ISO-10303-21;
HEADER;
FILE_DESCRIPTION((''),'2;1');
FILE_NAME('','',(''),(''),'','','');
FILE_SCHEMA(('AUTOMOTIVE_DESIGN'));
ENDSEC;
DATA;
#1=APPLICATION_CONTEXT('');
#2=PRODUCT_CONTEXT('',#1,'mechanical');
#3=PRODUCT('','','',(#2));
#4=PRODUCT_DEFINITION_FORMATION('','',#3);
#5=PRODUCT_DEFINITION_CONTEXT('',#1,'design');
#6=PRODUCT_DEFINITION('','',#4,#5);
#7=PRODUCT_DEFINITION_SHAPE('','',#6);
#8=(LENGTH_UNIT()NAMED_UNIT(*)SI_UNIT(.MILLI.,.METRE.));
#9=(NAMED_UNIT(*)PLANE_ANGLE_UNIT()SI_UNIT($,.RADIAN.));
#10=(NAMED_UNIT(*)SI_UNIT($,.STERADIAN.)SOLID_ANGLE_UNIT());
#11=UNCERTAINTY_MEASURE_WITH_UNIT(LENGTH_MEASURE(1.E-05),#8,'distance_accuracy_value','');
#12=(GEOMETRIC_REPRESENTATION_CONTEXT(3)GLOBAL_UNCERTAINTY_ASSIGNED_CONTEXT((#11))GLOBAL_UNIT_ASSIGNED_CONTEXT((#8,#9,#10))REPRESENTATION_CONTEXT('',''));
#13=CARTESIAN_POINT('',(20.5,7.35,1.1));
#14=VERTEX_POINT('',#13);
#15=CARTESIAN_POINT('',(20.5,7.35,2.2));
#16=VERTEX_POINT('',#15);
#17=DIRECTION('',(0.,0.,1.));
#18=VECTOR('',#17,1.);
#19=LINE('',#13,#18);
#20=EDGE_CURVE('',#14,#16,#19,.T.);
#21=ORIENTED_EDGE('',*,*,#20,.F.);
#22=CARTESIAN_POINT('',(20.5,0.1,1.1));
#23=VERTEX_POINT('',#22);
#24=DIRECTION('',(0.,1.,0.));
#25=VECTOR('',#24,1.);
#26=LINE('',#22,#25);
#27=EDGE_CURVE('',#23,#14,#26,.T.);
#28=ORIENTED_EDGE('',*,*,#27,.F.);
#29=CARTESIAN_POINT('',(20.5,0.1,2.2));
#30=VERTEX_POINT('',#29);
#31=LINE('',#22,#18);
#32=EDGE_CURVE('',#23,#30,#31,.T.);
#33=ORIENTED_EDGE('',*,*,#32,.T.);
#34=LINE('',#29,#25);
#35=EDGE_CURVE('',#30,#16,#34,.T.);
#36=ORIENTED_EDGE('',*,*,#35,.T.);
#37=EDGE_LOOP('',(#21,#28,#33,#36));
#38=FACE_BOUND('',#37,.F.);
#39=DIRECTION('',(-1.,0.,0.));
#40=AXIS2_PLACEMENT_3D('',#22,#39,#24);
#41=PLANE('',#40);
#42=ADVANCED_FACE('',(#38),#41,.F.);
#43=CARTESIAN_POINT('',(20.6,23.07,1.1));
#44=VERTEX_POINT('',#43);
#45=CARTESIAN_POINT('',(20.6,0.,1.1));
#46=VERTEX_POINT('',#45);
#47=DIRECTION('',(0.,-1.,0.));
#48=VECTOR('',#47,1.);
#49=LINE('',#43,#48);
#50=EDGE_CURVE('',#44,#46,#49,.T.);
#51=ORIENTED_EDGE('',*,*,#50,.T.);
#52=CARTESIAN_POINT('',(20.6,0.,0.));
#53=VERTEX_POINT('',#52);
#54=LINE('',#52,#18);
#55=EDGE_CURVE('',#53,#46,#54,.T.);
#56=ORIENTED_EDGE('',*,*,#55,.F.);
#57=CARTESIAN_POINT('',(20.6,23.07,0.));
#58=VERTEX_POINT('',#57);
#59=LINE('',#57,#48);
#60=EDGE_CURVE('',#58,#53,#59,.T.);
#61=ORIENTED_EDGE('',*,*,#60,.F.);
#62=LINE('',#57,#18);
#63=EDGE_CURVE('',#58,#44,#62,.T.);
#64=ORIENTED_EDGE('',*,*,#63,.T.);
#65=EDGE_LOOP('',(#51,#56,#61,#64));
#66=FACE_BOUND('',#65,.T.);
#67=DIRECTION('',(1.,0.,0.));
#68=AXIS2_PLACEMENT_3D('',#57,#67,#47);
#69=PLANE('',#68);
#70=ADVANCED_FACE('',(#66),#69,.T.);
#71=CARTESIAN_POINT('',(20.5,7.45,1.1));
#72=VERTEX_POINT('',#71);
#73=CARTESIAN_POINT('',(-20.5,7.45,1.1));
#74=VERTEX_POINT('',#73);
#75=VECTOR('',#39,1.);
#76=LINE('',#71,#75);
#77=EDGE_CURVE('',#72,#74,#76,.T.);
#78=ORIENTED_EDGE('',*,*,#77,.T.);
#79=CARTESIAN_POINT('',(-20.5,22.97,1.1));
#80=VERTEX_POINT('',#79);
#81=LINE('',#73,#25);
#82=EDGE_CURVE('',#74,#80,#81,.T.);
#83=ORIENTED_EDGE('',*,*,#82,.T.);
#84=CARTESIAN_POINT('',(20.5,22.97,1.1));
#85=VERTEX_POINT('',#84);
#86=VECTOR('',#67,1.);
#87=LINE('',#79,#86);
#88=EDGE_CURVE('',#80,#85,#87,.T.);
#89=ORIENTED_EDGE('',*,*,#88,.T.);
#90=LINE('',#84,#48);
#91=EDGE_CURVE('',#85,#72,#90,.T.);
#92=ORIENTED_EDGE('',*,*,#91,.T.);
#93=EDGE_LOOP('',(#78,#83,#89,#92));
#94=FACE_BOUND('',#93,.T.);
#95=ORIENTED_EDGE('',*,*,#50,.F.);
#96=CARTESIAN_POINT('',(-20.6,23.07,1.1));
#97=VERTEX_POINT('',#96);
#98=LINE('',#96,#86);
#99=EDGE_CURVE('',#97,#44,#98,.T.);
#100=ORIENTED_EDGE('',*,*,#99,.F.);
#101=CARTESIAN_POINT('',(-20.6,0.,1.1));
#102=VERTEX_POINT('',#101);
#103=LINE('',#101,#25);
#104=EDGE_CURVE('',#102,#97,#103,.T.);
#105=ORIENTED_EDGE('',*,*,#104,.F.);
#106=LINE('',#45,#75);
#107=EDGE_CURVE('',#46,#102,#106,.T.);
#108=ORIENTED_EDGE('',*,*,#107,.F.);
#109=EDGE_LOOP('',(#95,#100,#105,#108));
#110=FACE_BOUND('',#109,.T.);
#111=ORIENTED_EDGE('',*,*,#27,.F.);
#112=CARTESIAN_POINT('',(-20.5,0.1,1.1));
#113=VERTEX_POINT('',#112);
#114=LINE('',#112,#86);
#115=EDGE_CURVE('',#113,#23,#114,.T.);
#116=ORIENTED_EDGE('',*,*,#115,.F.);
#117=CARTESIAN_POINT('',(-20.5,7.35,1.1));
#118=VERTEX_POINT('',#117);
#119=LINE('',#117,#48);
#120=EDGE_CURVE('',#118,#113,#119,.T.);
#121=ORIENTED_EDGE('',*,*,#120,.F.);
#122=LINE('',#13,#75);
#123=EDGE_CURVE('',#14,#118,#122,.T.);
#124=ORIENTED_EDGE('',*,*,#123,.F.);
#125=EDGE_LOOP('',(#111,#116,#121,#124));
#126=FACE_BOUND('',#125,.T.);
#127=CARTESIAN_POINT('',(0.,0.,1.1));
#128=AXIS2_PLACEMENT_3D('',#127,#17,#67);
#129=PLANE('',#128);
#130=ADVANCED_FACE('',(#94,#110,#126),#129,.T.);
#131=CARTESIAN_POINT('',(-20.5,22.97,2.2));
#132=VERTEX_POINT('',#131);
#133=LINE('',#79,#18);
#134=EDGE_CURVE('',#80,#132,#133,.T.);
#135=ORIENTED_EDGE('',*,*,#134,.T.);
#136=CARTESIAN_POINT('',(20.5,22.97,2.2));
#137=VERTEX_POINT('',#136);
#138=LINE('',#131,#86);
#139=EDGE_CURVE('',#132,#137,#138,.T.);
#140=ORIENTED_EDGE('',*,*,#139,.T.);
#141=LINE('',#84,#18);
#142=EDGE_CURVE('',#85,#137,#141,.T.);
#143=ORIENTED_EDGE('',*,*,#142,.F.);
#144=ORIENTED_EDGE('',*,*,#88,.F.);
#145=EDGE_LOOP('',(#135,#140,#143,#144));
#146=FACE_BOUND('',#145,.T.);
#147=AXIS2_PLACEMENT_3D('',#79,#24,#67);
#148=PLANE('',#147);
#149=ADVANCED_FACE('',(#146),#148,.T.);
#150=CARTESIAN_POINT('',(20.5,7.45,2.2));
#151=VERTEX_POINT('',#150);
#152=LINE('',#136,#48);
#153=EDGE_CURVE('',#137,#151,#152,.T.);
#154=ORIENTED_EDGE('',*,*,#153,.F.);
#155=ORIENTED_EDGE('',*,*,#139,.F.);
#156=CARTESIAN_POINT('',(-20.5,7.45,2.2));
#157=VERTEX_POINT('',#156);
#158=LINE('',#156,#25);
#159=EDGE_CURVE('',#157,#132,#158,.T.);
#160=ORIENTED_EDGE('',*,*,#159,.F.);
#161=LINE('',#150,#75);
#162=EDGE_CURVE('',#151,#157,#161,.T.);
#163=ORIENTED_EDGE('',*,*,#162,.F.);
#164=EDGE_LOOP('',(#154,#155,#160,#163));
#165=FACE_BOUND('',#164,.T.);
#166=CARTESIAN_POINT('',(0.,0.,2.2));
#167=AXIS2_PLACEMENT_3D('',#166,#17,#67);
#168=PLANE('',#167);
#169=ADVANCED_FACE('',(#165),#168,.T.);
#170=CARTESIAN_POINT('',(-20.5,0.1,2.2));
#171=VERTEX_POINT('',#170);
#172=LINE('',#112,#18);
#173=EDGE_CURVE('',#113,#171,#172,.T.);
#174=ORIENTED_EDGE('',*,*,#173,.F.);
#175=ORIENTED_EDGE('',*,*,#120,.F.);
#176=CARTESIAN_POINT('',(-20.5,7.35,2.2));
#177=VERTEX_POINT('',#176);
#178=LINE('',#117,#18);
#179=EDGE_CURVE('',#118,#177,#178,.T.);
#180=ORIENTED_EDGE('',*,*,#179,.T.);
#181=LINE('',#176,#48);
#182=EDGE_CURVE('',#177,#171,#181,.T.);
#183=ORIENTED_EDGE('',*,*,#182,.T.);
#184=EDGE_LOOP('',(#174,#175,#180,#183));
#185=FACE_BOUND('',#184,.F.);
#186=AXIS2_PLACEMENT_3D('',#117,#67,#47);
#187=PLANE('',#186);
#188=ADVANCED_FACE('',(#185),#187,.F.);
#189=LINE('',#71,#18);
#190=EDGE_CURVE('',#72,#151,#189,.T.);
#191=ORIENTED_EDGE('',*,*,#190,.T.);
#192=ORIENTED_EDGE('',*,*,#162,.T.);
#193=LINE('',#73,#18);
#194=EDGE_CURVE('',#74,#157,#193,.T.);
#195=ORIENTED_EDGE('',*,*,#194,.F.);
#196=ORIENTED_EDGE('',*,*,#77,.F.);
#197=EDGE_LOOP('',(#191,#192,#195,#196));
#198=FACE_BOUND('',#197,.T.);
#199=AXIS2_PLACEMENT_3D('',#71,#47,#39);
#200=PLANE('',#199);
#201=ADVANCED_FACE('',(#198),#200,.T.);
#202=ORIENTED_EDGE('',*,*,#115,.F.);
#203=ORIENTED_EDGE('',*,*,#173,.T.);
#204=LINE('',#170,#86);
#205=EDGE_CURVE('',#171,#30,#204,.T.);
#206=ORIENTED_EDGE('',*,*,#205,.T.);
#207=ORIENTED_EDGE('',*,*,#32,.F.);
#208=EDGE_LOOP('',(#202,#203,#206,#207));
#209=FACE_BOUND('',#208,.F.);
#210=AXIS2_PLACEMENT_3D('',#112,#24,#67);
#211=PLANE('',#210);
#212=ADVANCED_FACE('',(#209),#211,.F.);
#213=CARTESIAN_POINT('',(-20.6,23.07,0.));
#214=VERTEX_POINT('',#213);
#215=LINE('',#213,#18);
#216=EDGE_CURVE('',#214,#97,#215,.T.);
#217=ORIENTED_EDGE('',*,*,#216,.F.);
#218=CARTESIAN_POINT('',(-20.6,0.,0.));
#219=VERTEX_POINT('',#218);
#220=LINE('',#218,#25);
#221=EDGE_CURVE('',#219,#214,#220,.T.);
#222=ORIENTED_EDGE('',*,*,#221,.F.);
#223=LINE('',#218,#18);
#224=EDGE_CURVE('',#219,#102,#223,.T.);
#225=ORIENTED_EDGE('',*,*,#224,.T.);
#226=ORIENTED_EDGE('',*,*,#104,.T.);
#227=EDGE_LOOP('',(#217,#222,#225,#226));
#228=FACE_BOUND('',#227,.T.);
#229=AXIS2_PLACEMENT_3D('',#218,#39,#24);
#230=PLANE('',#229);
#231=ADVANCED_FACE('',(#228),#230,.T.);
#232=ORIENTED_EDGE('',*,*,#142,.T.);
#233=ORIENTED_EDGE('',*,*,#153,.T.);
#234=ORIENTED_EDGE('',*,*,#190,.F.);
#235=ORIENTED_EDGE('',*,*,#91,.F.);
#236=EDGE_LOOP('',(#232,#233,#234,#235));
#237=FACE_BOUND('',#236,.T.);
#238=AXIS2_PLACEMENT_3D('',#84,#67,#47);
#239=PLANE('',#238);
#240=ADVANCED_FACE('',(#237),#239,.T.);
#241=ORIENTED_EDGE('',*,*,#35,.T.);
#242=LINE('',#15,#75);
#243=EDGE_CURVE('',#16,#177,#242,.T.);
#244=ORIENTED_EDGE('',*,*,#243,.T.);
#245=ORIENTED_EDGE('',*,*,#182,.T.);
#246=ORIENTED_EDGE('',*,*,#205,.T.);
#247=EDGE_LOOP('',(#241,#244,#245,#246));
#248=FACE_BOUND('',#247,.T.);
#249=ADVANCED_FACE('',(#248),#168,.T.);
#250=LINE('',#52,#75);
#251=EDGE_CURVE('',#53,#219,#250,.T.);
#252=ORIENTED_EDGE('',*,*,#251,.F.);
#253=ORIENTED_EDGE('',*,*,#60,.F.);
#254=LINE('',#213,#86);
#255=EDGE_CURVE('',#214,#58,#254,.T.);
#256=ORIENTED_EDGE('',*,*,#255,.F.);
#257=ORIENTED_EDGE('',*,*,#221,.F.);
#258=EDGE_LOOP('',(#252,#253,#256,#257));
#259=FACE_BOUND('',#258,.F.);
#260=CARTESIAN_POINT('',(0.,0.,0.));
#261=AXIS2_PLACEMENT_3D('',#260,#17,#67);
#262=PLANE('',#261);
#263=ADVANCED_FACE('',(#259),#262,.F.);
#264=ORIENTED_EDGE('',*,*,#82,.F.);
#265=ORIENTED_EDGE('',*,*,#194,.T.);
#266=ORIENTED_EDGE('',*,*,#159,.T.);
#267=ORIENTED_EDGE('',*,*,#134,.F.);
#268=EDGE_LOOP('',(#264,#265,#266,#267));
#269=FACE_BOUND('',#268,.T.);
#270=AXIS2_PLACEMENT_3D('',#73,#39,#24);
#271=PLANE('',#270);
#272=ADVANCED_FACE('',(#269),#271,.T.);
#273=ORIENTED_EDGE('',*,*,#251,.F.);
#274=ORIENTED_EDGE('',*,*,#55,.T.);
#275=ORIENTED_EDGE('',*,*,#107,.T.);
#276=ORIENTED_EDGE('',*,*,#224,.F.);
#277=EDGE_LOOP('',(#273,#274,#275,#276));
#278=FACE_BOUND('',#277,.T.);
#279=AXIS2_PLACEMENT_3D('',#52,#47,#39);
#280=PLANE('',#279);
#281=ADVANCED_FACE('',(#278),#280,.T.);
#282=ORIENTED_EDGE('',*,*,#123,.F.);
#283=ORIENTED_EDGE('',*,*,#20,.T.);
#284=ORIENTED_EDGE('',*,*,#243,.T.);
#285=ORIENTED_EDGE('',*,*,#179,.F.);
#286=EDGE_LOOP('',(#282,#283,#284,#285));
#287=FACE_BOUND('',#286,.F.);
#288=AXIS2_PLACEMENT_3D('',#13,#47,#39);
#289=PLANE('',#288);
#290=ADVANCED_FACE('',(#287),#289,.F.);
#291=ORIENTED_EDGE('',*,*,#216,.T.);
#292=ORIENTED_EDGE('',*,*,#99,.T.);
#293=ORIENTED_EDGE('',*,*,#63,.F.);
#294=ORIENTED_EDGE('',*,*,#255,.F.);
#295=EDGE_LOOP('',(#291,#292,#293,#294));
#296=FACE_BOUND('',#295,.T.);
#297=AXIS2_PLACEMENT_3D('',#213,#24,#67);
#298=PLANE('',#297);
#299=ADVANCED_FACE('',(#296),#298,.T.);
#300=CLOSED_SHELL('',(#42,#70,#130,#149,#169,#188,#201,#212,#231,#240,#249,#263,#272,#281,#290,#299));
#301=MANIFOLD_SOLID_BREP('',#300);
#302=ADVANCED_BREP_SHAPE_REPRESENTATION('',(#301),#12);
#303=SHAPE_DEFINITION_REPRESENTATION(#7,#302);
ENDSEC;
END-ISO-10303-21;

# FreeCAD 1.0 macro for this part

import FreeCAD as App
import Part
import Sketcher
Q = App.Units.Quantity


def add_polygon(sketch, points):
    """Adds a closed chain of lines whose ends are joined by coincident constraints."""
    first, n = sketch.GeometryCount, len(points)
    for a, b in zip(points, points[1:] + points[:1]):
        sketch.addGeometry(Part.LineSegment(App.Vector(*a, 0), App.Vector(*b, 0)), False)
    for i in range(n):
        sketch.addConstraint(Sketcher.Constraint("Coincident", first + i, 2, first + (i + 1) % n, 1))

doc = App.newDocument("Part")
body = doc.addObject("PartDesign::Body", "Body")

sketch1 = doc.addObject("Sketcher::SketchObject", "Sketch")
body.addObject(sketch1)
sketch1.AttachmentSupport = (doc.XY_Plane, [""])
sketch1.MapMode = "FlatFace"
add_polygon(sketch1, [(21, 23), (-21, 23), (-21, 0), (21, 0)])
sketch1.addConstraint([
    Sketcher.Constraint("Horizontal", 0),
    Sketcher.Constraint("Vertical", 1),
    Sketcher.Constraint("Horizontal", 2),
    Sketcher.Constraint("Vertical", 3),
    Sketcher.Constraint("Symmetric", 1, 2, 2, 2, -1, 1),
    Sketcher.Constraint("DistanceX", 0, 2, 0, 1, Q("41.2 mm")),
    Sketcher.Constraint("DistanceY", 1, 2, 1, 1, Q("23.07 mm")),
])
pad1 = doc.addObject("PartDesign::Pad", "Pad")
body.addObject(pad1)
pad1.Profile = sketch1
pad1.Length = 1.1

sketch2 = doc.addObject("Sketcher::SketchObject", "Sketch001")
body.addObject(sketch2)
sketch2.AttachmentSupport = (doc.XY_Plane, [""])
sketch2.MapMode = "FlatFace"
sketch2.AttachmentOffset = App.Placement(App.Vector(0, 0, 1.1), App.Rotation())
add_polygon(sketch2, [(-20, 7), (-20, 0), (20, 0), (20, 7)])
sketch2.addConstraint([
    Sketcher.Constraint("Vertical", 0),
    Sketcher.Constraint("Horizontal", 1),
    Sketcher.Constraint("Vertical", 2),
    Sketcher.Constraint("Horizontal", 3),
    Sketcher.Constraint("DistanceY", 0, 2, 0, 1, Q("7.25 mm")),
    Sketcher.Constraint("DistanceY", -1, 1, 0, 2, Q("0.1 mm")),
    Sketcher.Constraint("DistanceX", 1, 1, 1, 2, Q("41 mm")),
    Sketcher.Constraint("DistanceX", 0, 2, -1, 1, Q("20.5 mm")),
])
pad2 = doc.addObject("PartDesign::Pad", "Pad001")
body.addObject(pad2)
pad2.Profile = sketch2
pad2.Length = 1.1

sketch3 = doc.addObject("Sketcher::SketchObject", "Sketch002")
body.addObject(sketch3)
sketch3.AttachmentSupport = (doc.XY_Plane, [""])
sketch3.MapMode = "FlatFace"
sketch3.AttachmentOffset = App.Placement(App.Vector(0, 0, 1.1), App.Rotation())
add_polygon(sketch3, [(20, 23), (-20, 23), (-20, 7), (20, 7)])
sketch3.addConstraint([
    Sketcher.Constraint("Horizontal", 0),
    Sketcher.Constraint("Vertical", 1),
    Sketcher.Constraint("Horizontal", 2),
    Sketcher.Constraint("Vertical", 3),
    Sketcher.Constraint("DistanceX", 0, 2, 0, 1, Q("41 mm")),
    Sketcher.Constraint("DistanceY", 1, 2, 1, 1, Q("15.52 mm")),
    Sketcher.Constraint("DistanceX", 0, 2, -1, 1, Q("20.5 mm")),
    Sketcher.Constraint("DistanceY", -1, 1, 0, 2, Q("22.97 mm")),
])
pad3 = doc.addObject("PartDesign::Pad", "Pad002")
body.addObject(pad3)
pad3.Profile = sketch3
pad3.Length = 1.1

doc.recompute()
